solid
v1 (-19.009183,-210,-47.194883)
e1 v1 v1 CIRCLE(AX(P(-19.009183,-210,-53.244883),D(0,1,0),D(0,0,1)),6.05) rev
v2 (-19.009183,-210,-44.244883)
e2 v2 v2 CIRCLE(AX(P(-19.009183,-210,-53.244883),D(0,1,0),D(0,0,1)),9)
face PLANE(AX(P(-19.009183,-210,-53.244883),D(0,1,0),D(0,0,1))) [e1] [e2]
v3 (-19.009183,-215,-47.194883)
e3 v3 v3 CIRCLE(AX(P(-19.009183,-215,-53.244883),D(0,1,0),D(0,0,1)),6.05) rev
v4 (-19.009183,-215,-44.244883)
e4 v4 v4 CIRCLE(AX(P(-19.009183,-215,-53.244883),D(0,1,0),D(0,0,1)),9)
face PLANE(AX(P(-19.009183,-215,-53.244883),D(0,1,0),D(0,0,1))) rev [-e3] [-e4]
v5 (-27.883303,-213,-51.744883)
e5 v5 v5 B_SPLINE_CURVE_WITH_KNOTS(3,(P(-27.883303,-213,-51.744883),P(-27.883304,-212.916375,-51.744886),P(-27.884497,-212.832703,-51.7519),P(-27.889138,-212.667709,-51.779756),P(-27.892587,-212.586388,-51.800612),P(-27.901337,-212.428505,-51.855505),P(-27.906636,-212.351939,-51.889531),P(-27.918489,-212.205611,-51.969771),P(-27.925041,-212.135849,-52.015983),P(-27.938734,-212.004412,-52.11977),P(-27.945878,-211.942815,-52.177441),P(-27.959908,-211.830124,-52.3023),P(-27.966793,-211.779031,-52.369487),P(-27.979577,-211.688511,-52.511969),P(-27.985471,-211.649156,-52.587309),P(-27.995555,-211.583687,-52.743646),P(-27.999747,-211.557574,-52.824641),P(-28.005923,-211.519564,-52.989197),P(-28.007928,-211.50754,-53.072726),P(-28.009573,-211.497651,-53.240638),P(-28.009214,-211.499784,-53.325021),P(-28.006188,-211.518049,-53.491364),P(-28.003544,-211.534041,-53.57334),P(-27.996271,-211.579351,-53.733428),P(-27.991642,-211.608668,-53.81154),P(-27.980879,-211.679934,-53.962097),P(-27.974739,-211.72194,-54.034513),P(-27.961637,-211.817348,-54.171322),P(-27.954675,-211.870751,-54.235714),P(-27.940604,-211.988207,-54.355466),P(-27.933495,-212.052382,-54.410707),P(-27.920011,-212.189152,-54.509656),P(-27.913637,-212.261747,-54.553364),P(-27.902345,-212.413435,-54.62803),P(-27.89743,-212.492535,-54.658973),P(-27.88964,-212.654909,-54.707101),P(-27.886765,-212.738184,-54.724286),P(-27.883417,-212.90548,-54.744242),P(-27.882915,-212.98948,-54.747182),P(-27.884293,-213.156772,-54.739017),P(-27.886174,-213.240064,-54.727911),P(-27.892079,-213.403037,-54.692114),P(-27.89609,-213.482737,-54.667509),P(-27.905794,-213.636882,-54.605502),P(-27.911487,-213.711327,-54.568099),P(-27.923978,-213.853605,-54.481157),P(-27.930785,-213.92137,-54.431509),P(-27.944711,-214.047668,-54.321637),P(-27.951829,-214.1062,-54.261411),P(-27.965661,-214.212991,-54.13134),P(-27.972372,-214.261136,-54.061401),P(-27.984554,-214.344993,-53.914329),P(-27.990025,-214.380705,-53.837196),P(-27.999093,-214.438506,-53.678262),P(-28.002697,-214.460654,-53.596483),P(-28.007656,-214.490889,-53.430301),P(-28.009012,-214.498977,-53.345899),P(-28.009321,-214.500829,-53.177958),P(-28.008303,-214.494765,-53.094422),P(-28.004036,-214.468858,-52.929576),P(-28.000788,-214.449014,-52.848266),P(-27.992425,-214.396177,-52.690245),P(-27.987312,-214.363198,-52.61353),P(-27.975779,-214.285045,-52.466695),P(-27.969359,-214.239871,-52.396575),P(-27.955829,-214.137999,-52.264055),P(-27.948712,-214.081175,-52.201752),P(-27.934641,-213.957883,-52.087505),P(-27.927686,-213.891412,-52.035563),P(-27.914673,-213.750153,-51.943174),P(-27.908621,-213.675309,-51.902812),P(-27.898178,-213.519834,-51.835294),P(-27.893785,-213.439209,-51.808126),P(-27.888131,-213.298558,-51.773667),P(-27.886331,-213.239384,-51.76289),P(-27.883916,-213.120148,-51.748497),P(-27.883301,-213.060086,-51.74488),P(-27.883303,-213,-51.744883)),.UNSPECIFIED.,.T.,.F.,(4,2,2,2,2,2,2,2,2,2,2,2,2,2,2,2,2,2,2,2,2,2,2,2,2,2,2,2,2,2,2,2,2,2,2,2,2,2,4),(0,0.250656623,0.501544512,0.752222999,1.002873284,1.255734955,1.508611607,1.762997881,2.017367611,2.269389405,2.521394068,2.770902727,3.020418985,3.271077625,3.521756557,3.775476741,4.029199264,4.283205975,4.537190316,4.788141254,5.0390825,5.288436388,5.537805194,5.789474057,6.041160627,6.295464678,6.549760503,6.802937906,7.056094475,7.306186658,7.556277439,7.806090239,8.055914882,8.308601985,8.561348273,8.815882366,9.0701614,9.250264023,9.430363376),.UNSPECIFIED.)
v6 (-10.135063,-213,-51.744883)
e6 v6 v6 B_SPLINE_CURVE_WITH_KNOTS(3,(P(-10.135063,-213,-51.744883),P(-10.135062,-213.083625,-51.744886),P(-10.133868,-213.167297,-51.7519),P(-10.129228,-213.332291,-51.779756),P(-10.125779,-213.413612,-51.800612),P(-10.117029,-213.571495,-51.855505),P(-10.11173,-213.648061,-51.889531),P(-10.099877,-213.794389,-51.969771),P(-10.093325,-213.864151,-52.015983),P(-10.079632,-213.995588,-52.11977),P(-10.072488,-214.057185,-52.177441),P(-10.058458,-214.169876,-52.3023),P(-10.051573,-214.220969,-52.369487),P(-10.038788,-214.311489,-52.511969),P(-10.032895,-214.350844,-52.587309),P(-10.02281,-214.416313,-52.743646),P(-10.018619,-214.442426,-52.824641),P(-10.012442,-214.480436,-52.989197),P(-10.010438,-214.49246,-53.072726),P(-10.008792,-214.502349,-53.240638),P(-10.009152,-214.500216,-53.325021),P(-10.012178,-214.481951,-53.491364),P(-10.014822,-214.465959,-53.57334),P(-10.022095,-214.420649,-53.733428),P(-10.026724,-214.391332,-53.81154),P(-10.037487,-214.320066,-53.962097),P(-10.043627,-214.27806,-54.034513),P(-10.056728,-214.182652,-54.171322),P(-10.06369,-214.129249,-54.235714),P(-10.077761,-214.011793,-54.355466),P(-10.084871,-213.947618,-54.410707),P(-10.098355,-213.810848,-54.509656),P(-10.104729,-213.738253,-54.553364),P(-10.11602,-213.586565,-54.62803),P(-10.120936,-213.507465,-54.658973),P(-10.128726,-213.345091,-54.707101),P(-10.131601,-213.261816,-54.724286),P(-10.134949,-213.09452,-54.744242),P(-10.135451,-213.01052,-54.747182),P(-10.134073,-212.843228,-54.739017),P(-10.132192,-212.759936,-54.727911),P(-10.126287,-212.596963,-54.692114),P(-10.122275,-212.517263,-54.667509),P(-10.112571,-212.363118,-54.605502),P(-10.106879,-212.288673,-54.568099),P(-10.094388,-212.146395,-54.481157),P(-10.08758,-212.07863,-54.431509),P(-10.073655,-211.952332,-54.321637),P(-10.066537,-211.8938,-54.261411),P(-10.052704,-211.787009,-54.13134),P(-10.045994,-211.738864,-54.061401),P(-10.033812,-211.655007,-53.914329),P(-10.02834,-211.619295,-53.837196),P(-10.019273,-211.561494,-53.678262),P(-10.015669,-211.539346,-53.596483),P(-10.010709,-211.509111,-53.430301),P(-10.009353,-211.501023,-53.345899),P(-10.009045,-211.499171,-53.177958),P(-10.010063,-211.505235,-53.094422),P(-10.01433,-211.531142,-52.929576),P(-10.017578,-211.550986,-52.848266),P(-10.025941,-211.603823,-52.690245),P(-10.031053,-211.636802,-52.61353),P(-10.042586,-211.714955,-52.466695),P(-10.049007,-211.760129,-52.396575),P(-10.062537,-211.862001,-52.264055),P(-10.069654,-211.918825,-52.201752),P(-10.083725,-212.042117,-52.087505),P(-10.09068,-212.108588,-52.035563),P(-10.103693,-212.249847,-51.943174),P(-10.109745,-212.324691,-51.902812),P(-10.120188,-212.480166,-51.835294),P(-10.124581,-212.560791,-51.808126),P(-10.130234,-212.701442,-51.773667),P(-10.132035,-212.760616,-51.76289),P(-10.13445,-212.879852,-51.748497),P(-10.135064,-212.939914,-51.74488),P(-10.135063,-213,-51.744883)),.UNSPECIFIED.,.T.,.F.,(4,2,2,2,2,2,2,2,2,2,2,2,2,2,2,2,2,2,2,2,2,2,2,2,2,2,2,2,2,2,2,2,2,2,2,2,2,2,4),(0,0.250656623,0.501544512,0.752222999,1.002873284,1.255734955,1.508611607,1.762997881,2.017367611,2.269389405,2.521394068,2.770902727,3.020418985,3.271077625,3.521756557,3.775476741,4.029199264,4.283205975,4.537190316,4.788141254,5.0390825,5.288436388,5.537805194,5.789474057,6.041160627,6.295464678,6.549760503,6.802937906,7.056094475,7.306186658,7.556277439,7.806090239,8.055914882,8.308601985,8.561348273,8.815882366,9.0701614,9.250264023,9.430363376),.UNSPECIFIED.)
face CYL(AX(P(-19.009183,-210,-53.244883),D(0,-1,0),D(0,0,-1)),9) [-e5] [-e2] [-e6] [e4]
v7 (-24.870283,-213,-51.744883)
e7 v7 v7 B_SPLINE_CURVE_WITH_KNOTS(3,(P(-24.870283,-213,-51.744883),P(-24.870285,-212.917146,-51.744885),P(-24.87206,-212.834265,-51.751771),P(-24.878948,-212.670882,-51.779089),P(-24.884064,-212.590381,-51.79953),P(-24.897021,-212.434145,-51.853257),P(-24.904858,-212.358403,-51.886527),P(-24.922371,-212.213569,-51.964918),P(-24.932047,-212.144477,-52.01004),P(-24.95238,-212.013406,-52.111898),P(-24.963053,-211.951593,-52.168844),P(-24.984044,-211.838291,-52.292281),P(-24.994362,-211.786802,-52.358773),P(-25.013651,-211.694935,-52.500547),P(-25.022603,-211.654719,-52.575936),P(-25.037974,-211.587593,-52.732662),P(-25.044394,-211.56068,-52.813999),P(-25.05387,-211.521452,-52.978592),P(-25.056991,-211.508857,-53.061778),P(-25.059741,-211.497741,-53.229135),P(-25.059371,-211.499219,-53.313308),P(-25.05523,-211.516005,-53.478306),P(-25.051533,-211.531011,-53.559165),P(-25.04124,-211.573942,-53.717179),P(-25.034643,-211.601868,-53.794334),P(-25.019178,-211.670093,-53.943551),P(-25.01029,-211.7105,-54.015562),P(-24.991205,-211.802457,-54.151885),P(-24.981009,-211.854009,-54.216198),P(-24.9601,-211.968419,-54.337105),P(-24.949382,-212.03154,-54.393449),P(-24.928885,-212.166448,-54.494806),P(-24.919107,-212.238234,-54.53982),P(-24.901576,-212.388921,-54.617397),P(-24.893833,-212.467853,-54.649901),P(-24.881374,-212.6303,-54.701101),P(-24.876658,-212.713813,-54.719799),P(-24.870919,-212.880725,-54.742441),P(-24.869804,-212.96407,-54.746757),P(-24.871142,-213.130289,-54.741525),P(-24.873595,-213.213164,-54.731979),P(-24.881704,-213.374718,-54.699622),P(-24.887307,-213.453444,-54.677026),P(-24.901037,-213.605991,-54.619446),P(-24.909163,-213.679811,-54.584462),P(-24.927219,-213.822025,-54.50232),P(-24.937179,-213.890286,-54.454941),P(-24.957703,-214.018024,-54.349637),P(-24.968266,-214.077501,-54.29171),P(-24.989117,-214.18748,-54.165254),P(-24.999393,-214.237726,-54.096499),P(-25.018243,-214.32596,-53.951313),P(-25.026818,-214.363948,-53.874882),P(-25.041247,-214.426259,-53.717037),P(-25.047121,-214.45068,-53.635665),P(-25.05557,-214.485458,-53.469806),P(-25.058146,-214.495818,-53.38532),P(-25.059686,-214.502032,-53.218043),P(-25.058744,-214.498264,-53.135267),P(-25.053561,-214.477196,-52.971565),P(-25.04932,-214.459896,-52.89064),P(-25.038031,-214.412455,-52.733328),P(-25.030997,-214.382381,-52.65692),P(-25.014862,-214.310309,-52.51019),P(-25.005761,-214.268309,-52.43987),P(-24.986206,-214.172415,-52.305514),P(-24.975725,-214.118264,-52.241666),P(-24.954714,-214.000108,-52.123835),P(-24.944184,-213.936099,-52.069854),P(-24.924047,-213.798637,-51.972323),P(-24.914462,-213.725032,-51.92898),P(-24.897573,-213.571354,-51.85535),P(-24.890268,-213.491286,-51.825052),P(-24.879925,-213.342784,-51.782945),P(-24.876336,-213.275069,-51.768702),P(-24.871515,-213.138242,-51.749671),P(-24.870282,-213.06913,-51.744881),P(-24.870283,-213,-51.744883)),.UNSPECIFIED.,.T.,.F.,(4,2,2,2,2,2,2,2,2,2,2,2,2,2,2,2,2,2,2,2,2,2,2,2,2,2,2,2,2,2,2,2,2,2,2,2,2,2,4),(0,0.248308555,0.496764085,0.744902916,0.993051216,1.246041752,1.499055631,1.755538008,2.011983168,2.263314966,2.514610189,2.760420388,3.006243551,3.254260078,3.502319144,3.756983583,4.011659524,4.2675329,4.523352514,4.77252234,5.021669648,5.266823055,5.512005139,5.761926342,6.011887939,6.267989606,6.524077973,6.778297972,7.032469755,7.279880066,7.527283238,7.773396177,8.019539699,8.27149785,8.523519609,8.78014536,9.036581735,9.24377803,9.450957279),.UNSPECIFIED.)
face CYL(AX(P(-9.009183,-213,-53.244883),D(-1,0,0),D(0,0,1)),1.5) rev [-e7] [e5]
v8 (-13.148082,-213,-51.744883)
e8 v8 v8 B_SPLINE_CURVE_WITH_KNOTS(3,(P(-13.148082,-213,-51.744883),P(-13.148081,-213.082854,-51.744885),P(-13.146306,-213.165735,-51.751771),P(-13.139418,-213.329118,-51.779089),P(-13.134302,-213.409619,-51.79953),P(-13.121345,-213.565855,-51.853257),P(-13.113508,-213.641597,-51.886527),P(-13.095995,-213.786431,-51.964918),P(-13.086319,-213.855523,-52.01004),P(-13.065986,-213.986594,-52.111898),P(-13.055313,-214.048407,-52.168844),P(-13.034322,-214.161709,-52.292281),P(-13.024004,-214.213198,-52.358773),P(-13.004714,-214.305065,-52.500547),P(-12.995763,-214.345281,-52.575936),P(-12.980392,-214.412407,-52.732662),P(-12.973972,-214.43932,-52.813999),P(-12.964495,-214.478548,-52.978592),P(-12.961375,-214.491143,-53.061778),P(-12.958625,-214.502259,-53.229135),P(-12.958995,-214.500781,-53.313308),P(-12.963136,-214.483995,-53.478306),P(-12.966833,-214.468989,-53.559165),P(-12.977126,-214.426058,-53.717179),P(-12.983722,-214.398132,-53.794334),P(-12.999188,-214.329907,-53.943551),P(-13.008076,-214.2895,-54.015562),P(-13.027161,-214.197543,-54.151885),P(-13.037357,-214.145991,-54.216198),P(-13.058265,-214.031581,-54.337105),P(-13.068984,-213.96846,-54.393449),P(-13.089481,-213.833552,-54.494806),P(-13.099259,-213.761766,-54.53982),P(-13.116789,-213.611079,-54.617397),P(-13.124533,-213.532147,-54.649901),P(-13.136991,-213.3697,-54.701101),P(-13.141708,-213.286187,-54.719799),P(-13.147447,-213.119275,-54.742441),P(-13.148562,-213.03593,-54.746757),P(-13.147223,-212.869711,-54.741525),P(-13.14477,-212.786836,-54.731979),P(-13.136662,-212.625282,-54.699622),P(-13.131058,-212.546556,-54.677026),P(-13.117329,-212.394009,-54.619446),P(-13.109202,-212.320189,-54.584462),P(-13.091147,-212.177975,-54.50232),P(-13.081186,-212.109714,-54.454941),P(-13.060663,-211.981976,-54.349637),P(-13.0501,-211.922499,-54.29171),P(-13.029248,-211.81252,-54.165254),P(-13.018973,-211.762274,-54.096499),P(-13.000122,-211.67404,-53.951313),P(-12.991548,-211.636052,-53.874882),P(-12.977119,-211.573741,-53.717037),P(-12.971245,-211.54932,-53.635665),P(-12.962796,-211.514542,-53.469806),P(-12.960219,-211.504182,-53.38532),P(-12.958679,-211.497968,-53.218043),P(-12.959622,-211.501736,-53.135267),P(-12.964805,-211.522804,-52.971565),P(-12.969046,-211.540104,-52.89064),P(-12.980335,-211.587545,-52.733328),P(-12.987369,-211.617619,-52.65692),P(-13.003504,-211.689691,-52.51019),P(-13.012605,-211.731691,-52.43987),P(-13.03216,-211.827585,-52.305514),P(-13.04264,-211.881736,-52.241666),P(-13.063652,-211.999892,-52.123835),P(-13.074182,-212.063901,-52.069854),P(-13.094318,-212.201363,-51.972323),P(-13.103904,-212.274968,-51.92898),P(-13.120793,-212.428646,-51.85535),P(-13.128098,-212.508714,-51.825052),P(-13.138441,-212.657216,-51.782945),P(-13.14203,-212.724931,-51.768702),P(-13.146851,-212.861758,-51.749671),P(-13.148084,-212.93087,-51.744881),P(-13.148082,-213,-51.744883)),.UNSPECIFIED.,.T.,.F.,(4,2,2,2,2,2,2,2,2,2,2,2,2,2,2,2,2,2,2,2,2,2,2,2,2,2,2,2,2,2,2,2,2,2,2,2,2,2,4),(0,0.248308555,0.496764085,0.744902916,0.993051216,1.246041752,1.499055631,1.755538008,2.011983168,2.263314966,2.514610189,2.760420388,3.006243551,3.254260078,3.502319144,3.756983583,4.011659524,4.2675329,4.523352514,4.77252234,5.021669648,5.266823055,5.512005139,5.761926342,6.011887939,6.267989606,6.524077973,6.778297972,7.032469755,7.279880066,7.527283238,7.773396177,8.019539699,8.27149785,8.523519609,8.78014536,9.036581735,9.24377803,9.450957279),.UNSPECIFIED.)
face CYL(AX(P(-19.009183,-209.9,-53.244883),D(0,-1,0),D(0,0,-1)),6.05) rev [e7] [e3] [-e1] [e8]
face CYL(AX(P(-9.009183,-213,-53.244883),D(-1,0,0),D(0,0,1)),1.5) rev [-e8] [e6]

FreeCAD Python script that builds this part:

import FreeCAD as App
import Part
import Sketcher

V = App.Vector

doc = App.newDocument("Part")
body = doc.addObject("PartDesign::Body", "Body")

# Sketch on XZ plane
sketch1 = body.newObject("Sketcher::SketchObject", "Sketch")
sketch1.AttachmentSupport = (doc.getObject("XZ_Plane"), [""])
sketch1.MapMode = "FlatFace"
sketch1.AttachmentOffset = App.Placement(V(0, 0, 215), App.Rotation())
sketch1.addGeometry(Part.Circle(V(-19.009183, -53.244883, 0), V(0, 0, 1), 9), False)
sketch1.addConstraint(Sketcher.Constraint("Diameter", 0, 18.0))
sketch1.addConstraint(Sketcher.Constraint("DistanceX", 0, 3, -1, 1, 19.009183))
sketch1.addConstraint(Sketcher.Constraint("DistanceY", 0, 3, -1, 1, 53.244883))
pad1 = body.newObject("PartDesign::Pad", "Pad")
pad1.Profile = sketch1
pad1.Length = 5
pad1.Reversed = True

# Sketch on XZ plane
sketch2 = body.newObject("Sketcher::SketchObject", "Sketch001")
sketch2.AttachmentSupport = (doc.getObject("XZ_Plane"), [""])
sketch2.MapMode = "FlatFace"
sketch2.AttachmentOffset = App.Placement(V(0, 0, 215.1), App.Rotation())
sketch2.addGeometry(Part.Circle(V(-19.009183, -53.244883, 0), V(0, 0, 1), 6.05), False)
sketch2.addConstraint(Sketcher.Constraint("Diameter", 0, 12.1))
sketch2.addConstraint(Sketcher.Constraint("DistanceX", 0, 3, -1, 1, 19.009183))
sketch2.addConstraint(Sketcher.Constraint("DistanceY", 0, 3, -1, 1, 53.244883))
pocket1 = body.newObject("PartDesign::Pocket", "Pocket")
pocket1.Profile = sketch2
pocket1.Length = 5.2

# Sketch on YZ plane
sketch3 = body.newObject("Sketcher::SketchObject", "Sketch002")
sketch3.AttachmentSupport = (doc.getObject("YZ_Plane"), [""])
sketch3.MapMode = "FlatFace"
sketch3.AttachmentOffset = App.Placement(V(0, 0, -29.009183), App.Rotation())
sketch3.addGeometry(Part.Circle(V(-213, -53.244883, 0), V(0, 0, 1), 1.5), False)
sketch3.addConstraint(Sketcher.Constraint("Diameter", 0, 3.0))
sketch3.addConstraint(Sketcher.Constraint("DistanceX", 0, 3, -1, 1, 213.0))
sketch3.addConstraint(Sketcher.Constraint("DistanceY", 0, 3, -1, 1, 53.244883))
pocket2 = body.newObject("PartDesign::Pocket", "Pocket001")
pocket2.Profile = sketch3
pocket2.Length = 20
pocket2.Reversed = True

doc.recompute()
